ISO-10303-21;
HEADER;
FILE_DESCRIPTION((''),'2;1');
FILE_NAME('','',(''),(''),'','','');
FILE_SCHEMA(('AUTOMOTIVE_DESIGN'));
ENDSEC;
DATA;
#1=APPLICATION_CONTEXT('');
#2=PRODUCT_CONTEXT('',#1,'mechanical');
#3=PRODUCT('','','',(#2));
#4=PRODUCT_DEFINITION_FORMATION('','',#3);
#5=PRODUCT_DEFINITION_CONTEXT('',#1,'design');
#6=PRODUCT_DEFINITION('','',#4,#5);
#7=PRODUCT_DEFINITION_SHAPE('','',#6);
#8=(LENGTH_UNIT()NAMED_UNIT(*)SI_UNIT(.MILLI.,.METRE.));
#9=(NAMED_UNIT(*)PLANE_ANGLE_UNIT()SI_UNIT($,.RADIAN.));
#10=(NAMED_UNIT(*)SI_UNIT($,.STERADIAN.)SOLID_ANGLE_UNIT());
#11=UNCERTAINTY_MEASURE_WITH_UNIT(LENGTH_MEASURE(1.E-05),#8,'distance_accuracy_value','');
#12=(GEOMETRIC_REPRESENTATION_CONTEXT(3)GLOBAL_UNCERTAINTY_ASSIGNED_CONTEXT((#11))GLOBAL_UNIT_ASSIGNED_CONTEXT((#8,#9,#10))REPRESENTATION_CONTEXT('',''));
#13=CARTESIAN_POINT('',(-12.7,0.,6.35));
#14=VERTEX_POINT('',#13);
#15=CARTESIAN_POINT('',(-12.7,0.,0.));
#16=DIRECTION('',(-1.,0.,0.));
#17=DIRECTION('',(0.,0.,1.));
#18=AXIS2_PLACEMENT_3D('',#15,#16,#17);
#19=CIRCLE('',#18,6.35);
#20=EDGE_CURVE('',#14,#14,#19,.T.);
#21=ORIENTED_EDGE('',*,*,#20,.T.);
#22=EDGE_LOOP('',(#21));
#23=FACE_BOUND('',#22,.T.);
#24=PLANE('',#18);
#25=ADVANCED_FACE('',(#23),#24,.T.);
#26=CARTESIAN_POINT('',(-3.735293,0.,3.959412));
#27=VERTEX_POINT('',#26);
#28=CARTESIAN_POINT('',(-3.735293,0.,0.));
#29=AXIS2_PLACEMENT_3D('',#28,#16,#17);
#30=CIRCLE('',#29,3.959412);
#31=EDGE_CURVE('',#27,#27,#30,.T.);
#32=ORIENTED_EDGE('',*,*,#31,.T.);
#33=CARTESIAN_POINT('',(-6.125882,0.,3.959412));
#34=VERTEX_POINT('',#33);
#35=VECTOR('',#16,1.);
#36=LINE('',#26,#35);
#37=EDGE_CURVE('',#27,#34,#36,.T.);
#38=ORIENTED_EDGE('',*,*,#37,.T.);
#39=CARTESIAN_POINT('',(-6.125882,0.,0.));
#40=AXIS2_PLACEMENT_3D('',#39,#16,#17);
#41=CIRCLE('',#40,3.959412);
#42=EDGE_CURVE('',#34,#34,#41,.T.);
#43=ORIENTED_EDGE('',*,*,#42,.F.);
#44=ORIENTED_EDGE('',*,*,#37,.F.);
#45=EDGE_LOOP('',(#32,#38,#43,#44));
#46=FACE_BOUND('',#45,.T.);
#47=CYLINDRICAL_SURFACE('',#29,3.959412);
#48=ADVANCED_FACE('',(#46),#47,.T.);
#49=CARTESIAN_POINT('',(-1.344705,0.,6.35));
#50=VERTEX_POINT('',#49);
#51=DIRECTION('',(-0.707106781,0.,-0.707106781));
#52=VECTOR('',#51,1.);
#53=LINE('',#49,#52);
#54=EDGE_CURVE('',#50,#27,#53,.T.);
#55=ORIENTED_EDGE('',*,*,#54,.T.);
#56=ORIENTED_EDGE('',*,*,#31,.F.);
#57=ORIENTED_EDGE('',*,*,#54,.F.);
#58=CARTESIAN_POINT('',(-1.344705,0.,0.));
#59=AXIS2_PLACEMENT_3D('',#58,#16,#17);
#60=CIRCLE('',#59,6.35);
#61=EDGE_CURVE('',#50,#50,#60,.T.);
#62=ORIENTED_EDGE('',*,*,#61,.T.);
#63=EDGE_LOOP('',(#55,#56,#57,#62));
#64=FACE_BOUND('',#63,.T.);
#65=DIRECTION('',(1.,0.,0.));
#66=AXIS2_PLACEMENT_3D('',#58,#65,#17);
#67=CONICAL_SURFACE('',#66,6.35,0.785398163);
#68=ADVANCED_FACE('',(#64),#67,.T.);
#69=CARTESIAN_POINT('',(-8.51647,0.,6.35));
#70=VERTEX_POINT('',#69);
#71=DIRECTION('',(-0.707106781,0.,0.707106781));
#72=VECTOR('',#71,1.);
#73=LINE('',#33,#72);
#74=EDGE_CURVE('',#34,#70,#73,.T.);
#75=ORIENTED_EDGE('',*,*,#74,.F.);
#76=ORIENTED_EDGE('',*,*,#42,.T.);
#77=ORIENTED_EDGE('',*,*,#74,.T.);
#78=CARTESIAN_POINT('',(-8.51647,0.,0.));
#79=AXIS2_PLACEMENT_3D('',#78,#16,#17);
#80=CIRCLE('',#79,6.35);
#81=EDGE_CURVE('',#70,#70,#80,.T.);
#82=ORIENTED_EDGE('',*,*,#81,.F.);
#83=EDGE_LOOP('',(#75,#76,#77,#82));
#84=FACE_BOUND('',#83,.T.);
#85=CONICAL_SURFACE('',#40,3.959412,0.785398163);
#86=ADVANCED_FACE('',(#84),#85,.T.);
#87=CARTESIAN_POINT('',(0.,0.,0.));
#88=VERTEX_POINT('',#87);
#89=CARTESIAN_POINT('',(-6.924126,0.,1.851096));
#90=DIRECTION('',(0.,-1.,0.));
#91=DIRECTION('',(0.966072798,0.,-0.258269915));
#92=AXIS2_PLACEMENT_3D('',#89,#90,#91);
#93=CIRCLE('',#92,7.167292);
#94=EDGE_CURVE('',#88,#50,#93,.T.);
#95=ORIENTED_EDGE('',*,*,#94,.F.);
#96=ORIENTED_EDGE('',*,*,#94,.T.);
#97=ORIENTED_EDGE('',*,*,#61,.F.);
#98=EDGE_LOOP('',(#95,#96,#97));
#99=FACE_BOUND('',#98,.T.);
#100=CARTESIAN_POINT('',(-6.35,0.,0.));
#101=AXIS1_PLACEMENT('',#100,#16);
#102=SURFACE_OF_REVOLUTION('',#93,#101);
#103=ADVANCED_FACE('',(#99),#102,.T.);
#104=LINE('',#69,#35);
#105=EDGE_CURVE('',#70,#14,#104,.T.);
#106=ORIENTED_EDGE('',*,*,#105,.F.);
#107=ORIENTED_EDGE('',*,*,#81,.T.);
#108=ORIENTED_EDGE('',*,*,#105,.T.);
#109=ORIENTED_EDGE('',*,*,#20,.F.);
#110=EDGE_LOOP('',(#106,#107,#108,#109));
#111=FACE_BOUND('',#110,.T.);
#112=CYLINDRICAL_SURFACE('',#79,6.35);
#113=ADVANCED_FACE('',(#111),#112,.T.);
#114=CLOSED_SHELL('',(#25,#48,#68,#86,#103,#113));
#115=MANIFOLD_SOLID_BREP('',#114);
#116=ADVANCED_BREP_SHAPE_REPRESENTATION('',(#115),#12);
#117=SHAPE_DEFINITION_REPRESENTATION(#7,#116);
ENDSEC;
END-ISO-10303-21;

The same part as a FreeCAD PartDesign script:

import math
import FreeCAD as App
import Part
import Sketcher

V = App.Vector
Q = App.Units.Quantity

doc = App.newDocument("Part")
params = doc.addObject("Spreadsheet::Sheet", "Params")
for row, (alias, value) in enumerate([
    ("sketch1_width", "0.5 in"),
    ("sketch1_height", "0.25 in"),
    ("revolution_angle", "360 deg"),
], start=1):
    params.set(f"A{row}", alias)
    params.set(f"B{row}", "=" + value)
    params.setAlias(f"B{row}", alias)

body = doc.addObject("PartDesign::Body", "Body")

# Sketch on XZ plane
sketch1 = body.newObject("Sketcher::SketchObject", "Sketch")
sketch1.AttachmentSupport = (doc.getObject("XZ_Plane"), [""])
sketch1.MapMode = "FlatFace"
sketch1.addGeometry([
    Part.LineSegment(V(-12.7, 0, 0), V(0, 0, 0)),  # 0
    Part.ArcOfCircle(Part.Circle(V(-6.9, 1.9, 0), V(0, 0, 1), 7.2), math.radians(-15), math.radians(39)),  # 1
    Part.LineSegment(V(-1.3, 6.3, 0), V(-3.7, 4, 0)),  # 2
    Part.LineSegment(V(-3.7, 4, 0), V(-6.1, 4, 0)),  # 3
    Part.LineSegment(V(-6.1, 4, 0), V(-8.5, 6.3, 0)),  # 4
    Part.LineSegment(V(-8.5, 6.3, 0), V(-12.7, 6.3, 0)),  # 5
    Part.LineSegment(V(-12.7, 6.3, 0), V(-12.7, 0, 0)),  # 6
], False)
sketch1.addConstraint([
    Sketcher.Constraint("Coincident", 0, 2, 1, 1),
    Sketcher.Constraint("Coincident", 1, 2, 2, 1),
    Sketcher.Constraint("Coincident", 2, 2, 3, 1),
    Sketcher.Constraint("Coincident", 3, 2, 4, 1),
    Sketcher.Constraint("Coincident", 4, 2, 5, 1),
    Sketcher.Constraint("Coincident", 5, 2, 6, 1),
    Sketcher.Constraint("Coincident", 6, 2, 0, 1),
    Sketcher.Constraint("Horizontal", 0),
    Sketcher.Constraint("Horizontal", 3),
    Sketcher.Constraint("Horizontal", 5),
    Sketcher.Constraint("Vertical", 6),
    Sketcher.Constraint("Coincident", 0, 2, -1, 1),
    Sketcher.Constraint("Perpendicular", 2, 4),
    Sketcher.Constraint("Horizontal", 1, 2, 4, 2),
    Sketcher.Constraint("Equal", 2, 4),
    Sketcher.Constraint("DistanceX", 0, 1, 0, 2, Q("0.5 in")),
    Sketcher.Constraint("DistanceY", 6, 2, 6, 1, Q("0.25 in")),
    Sketcher.Constraint("Radius", 1, 7.167292),
    Sketcher.Constraint("Distance", 2, 3.380802),
    Sketcher.Constraint("DistanceX", 3, 2, 3, 1, 2.390589),
    Sketcher.Constraint("DistanceX", 5, 2, 5, 1, 4.18353),
])
sketch1.setExpression("Constraints[15]", "Params.sketch1_width")
sketch1.setExpression("Constraints[16]", "Params.sketch1_height")
revolution = body.newObject("PartDesign::Revolution", "Revolution")
revolution.Profile = sketch1
revolution.ReferenceAxis = (sketch1, ["H_Axis"])
revolution.setExpression("Angle", "Params.revolution_angle")

doc.recompute()
